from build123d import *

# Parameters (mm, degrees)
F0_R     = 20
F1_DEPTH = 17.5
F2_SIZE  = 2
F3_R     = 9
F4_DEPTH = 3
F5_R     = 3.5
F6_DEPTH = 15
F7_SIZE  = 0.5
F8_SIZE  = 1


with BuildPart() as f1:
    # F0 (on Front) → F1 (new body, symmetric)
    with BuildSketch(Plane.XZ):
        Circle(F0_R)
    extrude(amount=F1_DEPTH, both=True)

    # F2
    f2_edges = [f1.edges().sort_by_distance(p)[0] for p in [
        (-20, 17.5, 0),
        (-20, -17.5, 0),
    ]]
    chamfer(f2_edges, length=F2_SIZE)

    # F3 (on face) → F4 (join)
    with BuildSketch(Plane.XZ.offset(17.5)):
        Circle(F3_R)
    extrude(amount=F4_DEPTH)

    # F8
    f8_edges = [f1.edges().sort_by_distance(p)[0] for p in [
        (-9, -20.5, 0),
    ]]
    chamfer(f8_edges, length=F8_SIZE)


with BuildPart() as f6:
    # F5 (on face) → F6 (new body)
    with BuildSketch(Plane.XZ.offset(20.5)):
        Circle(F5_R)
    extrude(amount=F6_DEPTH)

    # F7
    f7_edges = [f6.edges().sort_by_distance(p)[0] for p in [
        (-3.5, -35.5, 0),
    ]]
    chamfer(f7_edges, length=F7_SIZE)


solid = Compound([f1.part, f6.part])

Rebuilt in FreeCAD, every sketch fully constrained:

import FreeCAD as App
import Part
import Sketcher
Q = App.Units.Quantity


def edges_at(feature, points):
    """Names of the edges that pass closest to the given points."""
    edges = feature.Shape.Edges
    near = lambda p: min(range(len(edges)), key=lambda i: edges[i].distToShape(Part.Vertex(*p))[0])
    return sorted({f"Edge{near(p) + 1}" for p in points})

doc = App.newDocument("Part")
body = doc.addObject("PartDesign::Body", "Body")

# Sketch on XZ plane
sketch1 = body.newObject("Sketcher::SketchObject", "Sketch")
sketch1.AttachmentSupport = (doc.getObject("XZ_Plane"), [""])
sketch1.MapMode = "FlatFace"
sketch1.addGeometry(Part.Circle(App.Vector(0, 0, 0), App.Vector(0, 0, 1), 20), False)
sketch1.addConstraint(Sketcher.Constraint("Coincident", 0, 3, -1, 1))
sketch1.addConstraint(Sketcher.Constraint("Diameter", 0, Q("40 mm")))
pad1 = body.newObject("PartDesign::Pad", "Pad")
pad1.Profile = sketch1
pad1.Length = 35
pad1.Midplane = True
doc.recompute()

chamfer = body.newObject("PartDesign::Chamfer", "Chamfer")
chamfer.Base = (pad1, edges_at(pad1, [(-20, 17.5, 0), (-20, -17.5, 0)]))
chamfer.Size = 2

# Sketch on XZ plane
sketch2 = body.newObject("Sketcher::SketchObject", "Sketch001")
sketch2.AttachmentSupport = (doc.getObject("XZ_Plane"), [""])
sketch2.MapMode = "FlatFace"
sketch2.AttachmentOffset = App.Placement(App.Vector(0, 0, 17.5), App.Rotation())
sketch2.addGeometry(Part.Circle(App.Vector(0, 0, 0), App.Vector(0, 0, 1), 9), False)
sketch2.addConstraint(Sketcher.Constraint("Coincident", 0, 3, -1, 1))
sketch2.addConstraint(Sketcher.Constraint("Diameter", 0, Q("18 mm")))
pad2 = body.newObject("PartDesign::Pad", "Pad001")
pad2.Profile = sketch2
pad2.Length = 3
doc.recompute()

chamfer2 = body.newObject("PartDesign::Chamfer", "Chamfer001")
chamfer2.Base = (pad2, edges_at(pad2, [(-9, -20.5, 0)]))
chamfer2.Size = 1
body2 = doc.addObject("PartDesign::Body", "Body001")

# Sketch on XZ plane
sketch3 = body2.newObject("Sketcher::SketchObject", "Sketch002")
sketch3.AttachmentSupport = (doc.getObject("XZ_Plane001"), [""])
sketch3.MapMode = "FlatFace"
sketch3.AttachmentOffset = App.Placement(App.Vector(0, 0, 20.5), App.Rotation())
sketch3.addGeometry(Part.Circle(App.Vector(0, 0, 0), App.Vector(0, 0, 1), 3.5), False)
sketch3.addConstraint(Sketcher.Constraint("Coincident", 0, 3, -1, 1))
sketch3.addConstraint(Sketcher.Constraint("Diameter", 0, Q("7 mm")))
pad3 = body2.newObject("PartDesign::Pad", "Pad002")
pad3.Profile = sketch3
pad3.Length = 15
doc.recompute()

chamfer3 = body2.newObject("PartDesign::Chamfer", "Chamfer002")
chamfer3.Base = (pad3, edges_at(pad3, [(-3.5, -35.5, 0)]))
chamfer3.Size = 0.5

doc.recompute()
